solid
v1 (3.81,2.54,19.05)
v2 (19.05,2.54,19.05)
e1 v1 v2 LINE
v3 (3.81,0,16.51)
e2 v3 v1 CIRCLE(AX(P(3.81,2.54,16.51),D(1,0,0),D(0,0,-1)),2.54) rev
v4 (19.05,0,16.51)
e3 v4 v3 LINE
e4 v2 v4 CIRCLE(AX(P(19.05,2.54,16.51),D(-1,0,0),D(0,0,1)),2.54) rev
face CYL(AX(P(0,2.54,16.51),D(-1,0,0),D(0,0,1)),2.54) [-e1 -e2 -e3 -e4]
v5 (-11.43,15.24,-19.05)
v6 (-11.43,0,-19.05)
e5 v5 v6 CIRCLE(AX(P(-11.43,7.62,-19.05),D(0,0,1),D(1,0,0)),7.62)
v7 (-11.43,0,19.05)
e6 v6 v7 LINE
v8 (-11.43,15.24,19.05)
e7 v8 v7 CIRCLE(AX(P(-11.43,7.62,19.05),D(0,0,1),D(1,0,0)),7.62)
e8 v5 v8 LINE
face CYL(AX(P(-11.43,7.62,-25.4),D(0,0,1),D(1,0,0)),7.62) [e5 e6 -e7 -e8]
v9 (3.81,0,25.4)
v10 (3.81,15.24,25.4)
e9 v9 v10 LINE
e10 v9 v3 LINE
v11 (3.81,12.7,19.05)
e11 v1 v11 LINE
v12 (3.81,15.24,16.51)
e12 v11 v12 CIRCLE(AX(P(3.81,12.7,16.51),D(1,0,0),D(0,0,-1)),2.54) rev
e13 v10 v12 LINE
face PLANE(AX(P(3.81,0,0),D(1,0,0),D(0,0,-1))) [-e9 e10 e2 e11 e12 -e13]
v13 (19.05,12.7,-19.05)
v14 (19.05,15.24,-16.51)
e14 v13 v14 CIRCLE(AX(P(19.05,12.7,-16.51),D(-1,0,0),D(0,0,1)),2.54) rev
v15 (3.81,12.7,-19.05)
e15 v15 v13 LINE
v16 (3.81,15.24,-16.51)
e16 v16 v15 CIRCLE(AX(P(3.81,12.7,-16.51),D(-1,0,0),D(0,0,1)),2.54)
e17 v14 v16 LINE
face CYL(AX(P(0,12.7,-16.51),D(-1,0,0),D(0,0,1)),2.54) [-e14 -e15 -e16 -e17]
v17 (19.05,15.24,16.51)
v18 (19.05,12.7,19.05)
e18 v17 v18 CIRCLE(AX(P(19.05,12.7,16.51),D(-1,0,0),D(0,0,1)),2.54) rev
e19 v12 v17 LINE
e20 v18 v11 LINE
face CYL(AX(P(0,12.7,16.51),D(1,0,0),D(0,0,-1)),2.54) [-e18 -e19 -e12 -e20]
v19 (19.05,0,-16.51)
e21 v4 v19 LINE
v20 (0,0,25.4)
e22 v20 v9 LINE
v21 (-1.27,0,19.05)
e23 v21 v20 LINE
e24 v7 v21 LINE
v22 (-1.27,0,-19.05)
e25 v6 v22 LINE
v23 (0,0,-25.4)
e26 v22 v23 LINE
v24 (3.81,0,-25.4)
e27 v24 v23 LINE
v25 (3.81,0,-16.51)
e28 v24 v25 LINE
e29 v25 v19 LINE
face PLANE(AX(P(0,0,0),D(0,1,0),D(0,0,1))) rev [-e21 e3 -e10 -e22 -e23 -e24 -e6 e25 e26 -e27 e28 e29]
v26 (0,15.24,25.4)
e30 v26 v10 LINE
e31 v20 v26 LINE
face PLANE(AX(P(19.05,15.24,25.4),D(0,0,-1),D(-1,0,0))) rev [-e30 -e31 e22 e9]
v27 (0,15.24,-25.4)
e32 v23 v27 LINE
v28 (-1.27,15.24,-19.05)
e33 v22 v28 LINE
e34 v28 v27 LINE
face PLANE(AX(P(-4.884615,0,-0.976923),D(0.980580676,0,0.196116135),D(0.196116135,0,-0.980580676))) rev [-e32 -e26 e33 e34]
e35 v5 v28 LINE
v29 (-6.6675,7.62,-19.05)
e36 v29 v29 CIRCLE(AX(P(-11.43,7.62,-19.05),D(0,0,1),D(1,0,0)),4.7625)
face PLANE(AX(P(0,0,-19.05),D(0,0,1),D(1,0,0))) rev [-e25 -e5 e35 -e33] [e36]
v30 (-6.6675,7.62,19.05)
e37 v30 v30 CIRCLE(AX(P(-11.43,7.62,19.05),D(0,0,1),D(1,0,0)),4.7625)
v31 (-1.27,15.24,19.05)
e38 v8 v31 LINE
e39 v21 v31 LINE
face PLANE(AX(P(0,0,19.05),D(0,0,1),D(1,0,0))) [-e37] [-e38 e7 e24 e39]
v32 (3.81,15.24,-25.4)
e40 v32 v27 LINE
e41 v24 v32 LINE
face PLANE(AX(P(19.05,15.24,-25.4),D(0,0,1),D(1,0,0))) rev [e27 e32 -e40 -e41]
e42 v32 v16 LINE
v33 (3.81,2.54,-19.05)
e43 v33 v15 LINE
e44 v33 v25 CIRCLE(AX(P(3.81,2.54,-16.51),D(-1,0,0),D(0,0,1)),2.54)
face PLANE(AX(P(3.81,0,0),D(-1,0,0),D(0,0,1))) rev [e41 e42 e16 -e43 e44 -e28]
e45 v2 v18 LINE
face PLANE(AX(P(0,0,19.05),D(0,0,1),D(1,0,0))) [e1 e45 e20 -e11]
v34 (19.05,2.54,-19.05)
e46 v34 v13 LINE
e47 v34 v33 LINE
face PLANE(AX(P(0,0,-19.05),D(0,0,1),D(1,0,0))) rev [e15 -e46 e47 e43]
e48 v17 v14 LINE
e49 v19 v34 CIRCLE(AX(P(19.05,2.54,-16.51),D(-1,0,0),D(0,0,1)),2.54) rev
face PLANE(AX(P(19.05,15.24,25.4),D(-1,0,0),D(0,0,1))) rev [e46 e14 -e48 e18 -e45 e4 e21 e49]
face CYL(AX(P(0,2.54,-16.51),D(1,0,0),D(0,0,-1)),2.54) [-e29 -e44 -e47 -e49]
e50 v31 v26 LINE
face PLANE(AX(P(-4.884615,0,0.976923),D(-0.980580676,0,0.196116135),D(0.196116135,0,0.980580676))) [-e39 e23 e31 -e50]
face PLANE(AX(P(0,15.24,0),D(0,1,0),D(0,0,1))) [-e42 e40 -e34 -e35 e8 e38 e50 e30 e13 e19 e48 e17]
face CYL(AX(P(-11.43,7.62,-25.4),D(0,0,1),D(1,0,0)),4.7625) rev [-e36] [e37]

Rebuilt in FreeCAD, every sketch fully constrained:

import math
import FreeCAD as App
import Part
import Sketcher
from FreeCAD import Vector
Q = App.Units.Quantity


def edges_at(feature, points):
    """Names of the edges that pass closest to the given points."""
    edges = feature.Shape.Edges
    near = lambda p: min(range(len(edges)), key=lambda i: edges[i].distToShape(Part.Vertex(*p))[0])
    return sorted({f"Edge{near(p) + 1}" for p in points})

doc = App.newDocument("Part")
body = doc.addObject("PartDesign::Body", "Body")

# Sketch on XZ plane
sketch1 = body.newObject("Sketcher::SketchObject", "Sketch")
sketch1.AttachmentSupport = (doc.getObject("XZ_Plane"), [""])
sketch1.MapMode = "FlatFace"
sketch1.addGeometry(Part.LineSegment(Vector(-19, -25, 0), Vector(-19, 25, 0)), False)
sketch1.addGeometry(Part.LineSegment(Vector(-19, 25, 0), Vector(19, 25, 0)), False)
sketch1.addGeometry(Part.LineSegment(Vector(19, 25, 0), Vector(19, -25, 0)), False)
sketch1.addGeometry(Part.LineSegment(Vector(19, -25, 0), Vector(-19, -25, 0)), False)
sketch1.addConstraint(Sketcher.Constraint("Coincident", 0, 2, 1, 1))
sketch1.addConstraint(Sketcher.Constraint("Coincident", 1, 2, 2, 1))
sketch1.addConstraint(Sketcher.Constraint("Coincident", 2, 2, 3, 1))
sketch1.addConstraint(Sketcher.Constraint("Coincident", 3, 2, 0, 1))
sketch1.addConstraint(Sketcher.Constraint("Vertical", 0))
sketch1.addConstraint(Sketcher.Constraint("Horizontal", 1))
sketch1.addConstraint(Sketcher.Constraint("Vertical", 2))
sketch1.addConstraint(Sketcher.Constraint("Horizontal", 3))
sketch1.addConstraint(Sketcher.Constraint("Symmetric", 0, 2, 2, 2, -1, 1))
sketch1.addConstraint(Sketcher.Constraint("DistanceY", 0, 1, 0, 2, Q("2 in")))
sketch1.addConstraint(Sketcher.Constraint("DistanceX", 1, 1, 1, 2, Q("1.5 in")))
pad1 = body.newObject("PartDesign::Pad", "Pad")
pad1.Profile = sketch1
pad1.Length = Q("0.6 in")
pad1.Reversed = True

# Sketch on XZ plane
sketch2 = body.newObject("Sketcher::SketchObject", "Sketch001")
sketch2.AttachmentSupport = (doc.getObject("XZ_Plane"), [""])
sketch2.MapMode = "FlatFace"
sketch2.AttachmentOffset = App.Placement(Vector(0, 0, -0.6 * 25.4), App.Rotation())
sketch2.addGeometry(Part.LineSegment(Vector(-19, -25, 0), Vector(-19, -19, 0)), False)
sketch2.addGeometry(Part.LineSegment(Vector(-19, -19, 0), Vector(-1, -19, 0)), False)
sketch2.addGeometry(Part.LineSegment(Vector(-1, -19, 0), Vector(0, -25, 0)), False)
sketch2.addGeometry(Part.LineSegment(Vector(0, -25, 0), Vector(-19, -25, 0)), False)
sketch2.addGeometry(Part.LineSegment(Vector(4, -25, 0), Vector(4, -19, 0)), False)
sketch2.addGeometry(Part.LineSegment(Vector(4, -19, 0), Vector(19, -19, 0)), False)
sketch2.addGeometry(Part.LineSegment(Vector(19, -19, 0), Vector(19, -25, 0)), False)
sketch2.addGeometry(Part.LineSegment(Vector(19, -25, 0), Vector(4, -25, 0)), False)
sketch2.addGeometry(Part.LineSegment(Vector(-19, 19, 0), Vector(-19, 25, 0)), False)
sketch2.addGeometry(Part.LineSegment(Vector(-19, 25, 0), Vector(0, 25, 0)), False)
sketch2.addGeometry(Part.LineSegment(Vector(0, 25, 0), Vector(-1, 19, 0)), False)
sketch2.addGeometry(Part.LineSegment(Vector(-1, 19, 0), Vector(-19, 19, 0)), False)
sketch2.addGeometry(Part.LineSegment(Vector(4, 19, 0), Vector(4, 25, 0)), False)
sketch2.addGeometry(Part.LineSegment(Vector(4, 25, 0), Vector(19, 25, 0)), False)
sketch2.addGeometry(Part.LineSegment(Vector(19, 25, 0), Vector(19, 19, 0)), False)
sketch2.addGeometry(Part.LineSegment(Vector(19, 19, 0), Vector(4, 19, 0)), False)
sketch2.addConstraint(Sketcher.Constraint("Coincident", 0, 2, 1, 1))
sketch2.addConstraint(Sketcher.Constraint("Coincident", 1, 2, 2, 1))
sketch2.addConstraint(Sketcher.Constraint("Coincident", 2, 2, 3, 1))
sketch2.addConstraint(Sketcher.Constraint("Coincident", 3, 2, 0, 1))
sketch2.addConstraint(Sketcher.Constraint("Coincident", 4, 2, 5, 1))
sketch2.addConstraint(Sketcher.Constraint("Coincident", 5, 2, 6, 1))
sketch2.addConstraint(Sketcher.Constraint("Coincident", 6, 2, 7, 1))
sketch2.addConstraint(Sketcher.Constraint("Coincident", 7, 2, 4, 1))
sketch2.addConstraint(Sketcher.Constraint("Coincident", 8, 2, 9, 1))
sketch2.addConstraint(Sketcher.Constraint("Coincident", 9, 2, 10, 1))
sketch2.addConstraint(Sketcher.Constraint("Coincident", 10, 2, 11, 1))
sketch2.addConstraint(Sketcher.Constraint("Coincident", 11, 2, 8, 1))
sketch2.addConstraint(Sketcher.Constraint("Coincident", 12, 2, 13, 1))
sketch2.addConstraint(Sketcher.Constraint("Coincident", 13, 2, 14, 1))
sketch2.addConstraint(Sketcher.Constraint("Coincident", 14, 2, 15, 1))
sketch2.addConstraint(Sketcher.Constraint("Coincident", 15, 2, 12, 1))
sketch2.addConstraint(Sketcher.Constraint("Vertical", 0))
sketch2.addConstraint(Sketcher.Constraint("Horizontal", 1))
sketch2.addConstraint(Sketcher.Constraint("Horizontal", 3))
sketch2.addConstraint(Sketcher.Constraint("Vertical", 4))
sketch2.addConstraint(Sketcher.Constraint("Horizontal", 5))
sketch2.addConstraint(Sketcher.Constraint("Vertical", 6))
sketch2.addConstraint(Sketcher.Constraint("Horizontal", 7))
sketch2.addConstraint(Sketcher.Constraint("Vertical", 8))
sketch2.addConstraint(Sketcher.Constraint("Horizontal", 9))
sketch2.addConstraint(Sketcher.Constraint("Horizontal", 11))
sketch2.addConstraint(Sketcher.Constraint("Vertical", 12))
sketch2.addConstraint(Sketcher.Constraint("Horizontal", 13))
sketch2.addConstraint(Sketcher.Constraint("Vertical", 14))
sketch2.addConstraint(Sketcher.Constraint("Horizontal", 15))
sketch2.addConstraint(Sketcher.Constraint("Symmetric", 6, 2, 8, 2, -1, 1))
sketch2.addConstraint(Sketcher.Constraint("Symmetric", 2, 2, 9, 2, -1, 1))
sketch2.addConstraint(Sketcher.Constraint("Symmetric", 3, 2, 13, 2, -1, 1))
sketch2.addConstraint(Sketcher.Constraint("Symmetric", 0, 2, 5, 2, -2))
sketch2.addConstraint(Sketcher.Constraint("Symmetric", 1, 2, 10, 2, -1))
sketch2.addConstraint(Sketcher.Constraint("Symmetric", 4, 2, 15, 2, -1))
sketch2.addConstraint(Sketcher.Constraint("PointOnObject", 2, 2, -2))
sketch2.addConstraint(Sketcher.Constraint("DistanceX", 1, 1, 1, 2, Q("0.7 in")))
sketch2.addConstraint(Sketcher.Constraint("DistanceX", 5, 1, 5, 2, Q("0.6 in")))
sketch2.addConstraint(Sketcher.Constraint("DistanceY", 2, 2, -1, 1, Q("1 in")))
sketch2.addConstraint(Sketcher.Constraint("DistanceX", 3, 2, 3, 1, Q("0.75 in")))
sketch2.addConstraint(Sketcher.Constraint("DistanceY", 0, 1, 0, 2, Q("0.25 in")))
pocket1 = body.newObject("PartDesign::Pocket", "Pocket")
pocket1.Profile = sketch2
pocket1.Length = Q("0.6 in")
pocket1.Reversed = True

# Sketch on XY plane
sketch3 = body.newObject("Sketcher::SketchObject", "Sketch002")
sketch3.AttachmentSupport = (doc.getObject("XY_Plane"), [""])
sketch3.MapMode = "FlatFace"
sketch3.AttachmentOffset = App.Placement(Vector(0, 0, 0.75 * 25.4), App.Rotation())
sketch3.addGeometry(Part.ArcOfCircle(Part.Circle(Vector(-11.4, 7.6, 0), Vector(0, 0, 1), 7.6), math.radians(90), math.radians(180)), False)
sketch3.addGeometry(Part.LineSegment(Vector(-11.4, 15.2, 0), Vector(-19.1, 15.2, 0)), False)
sketch3.addGeometry(Part.LineSegment(Vector(-19.1, 15.2, 0), Vector(-19.1, 7.6, 0)), False)
sketch3.addGeometry(Part.ArcOfCircle(Part.Circle(Vector(-11.4, 7.6, 0), Vector(0, 0, 1), 7.6), math.radians(180), math.radians(270)), False)
sketch3.addGeometry(Part.LineSegment(Vector(-19.1, 7.6, 0), Vector(-19.1, 0, 0)), False)
sketch3.addGeometry(Part.LineSegment(Vector(-19.1, 0, 0), Vector(-11.4, 0, 0)), False)
sketch3.addGeometry(Part.Circle(Vector(-11.4, 7.6, 0), Vector(0, 0, 1), 4.8), False)
sketch3.addConstraint(Sketcher.Constraint("Tangent", 0, 1, 1, 1))
sketch3.addConstraint(Sketcher.Constraint("Coincident", 1, 2, 2, 1))
sketch3.addConstraint(Sketcher.Constraint("Tangent", 2, 2, 0, 2))
sketch3.addConstraint(Sketcher.Constraint("Tangent", 3, 1, 4, 1))
sketch3.addConstraint(Sketcher.Constraint("Coincident", 4, 2, 5, 1))
sketch3.addConstraint(Sketcher.Constraint("Tangent", 5, 2, 3, 2))
sketch3.addConstraint(Sketcher.Constraint("Horizontal", 1))
sketch3.addConstraint(Sketcher.Constraint("Vertical", 2))
sketch3.addConstraint(Sketcher.Constraint("Vertical", 4))
sketch3.addConstraint(Sketcher.Constraint("Horizontal", 5))
sketch3.addConstraint(Sketcher.Constraint("Coincident", 3, 3, 0, 3))
sketch3.addConstraint(Sketcher.Constraint("Coincident", 6, 3, 0, 3))
sketch3.addConstraint(Sketcher.Constraint("Equal", 0, 3))
sketch3.addConstraint(Sketcher.Constraint("PointOnObject", 4, 2, -1))
sketch3.addConstraint(Sketcher.Constraint("Radius", 0, Q("0.3 in")))
sketch3.addConstraint(Sketcher.Constraint("Diameter", 6, Q("0.375 in")))
sketch3.addConstraint(Sketcher.Constraint("DistanceX", 0, 3, -1, 1, Q("0.45 in")))
pocket2 = body.newObject("PartDesign::Pocket", "Pocket001")
pocket2.Profile = sketch3
pocket2.Type = "ThroughAll"
doc.recompute()

fillet = body.newObject("PartDesign::Fillet", "Fillet")
fillet.Base = (pocket2, edges_at(pocket2, [
    (11.43, 15.24, 19.05),
    (11.43, 0, 19.05),
    (11.43, 0, -19.05),
    (11.43, 15.24, -19.05),
]))
fillet.Radius = Q("0.1 in")

doc.recompute()
